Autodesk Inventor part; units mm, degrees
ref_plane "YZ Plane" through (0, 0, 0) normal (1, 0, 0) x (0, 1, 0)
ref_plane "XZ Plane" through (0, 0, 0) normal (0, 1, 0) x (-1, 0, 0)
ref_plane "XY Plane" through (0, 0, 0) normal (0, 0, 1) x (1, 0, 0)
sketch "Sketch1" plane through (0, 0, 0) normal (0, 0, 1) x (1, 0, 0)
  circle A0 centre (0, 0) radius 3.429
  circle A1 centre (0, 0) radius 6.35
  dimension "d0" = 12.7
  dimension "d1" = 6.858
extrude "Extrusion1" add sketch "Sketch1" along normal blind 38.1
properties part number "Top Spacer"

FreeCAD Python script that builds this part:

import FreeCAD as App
import Part
import Sketcher
from FreeCAD import Vector
Q = App.Units.Quantity

doc = App.newDocument("Part")
body = doc.addObject("PartDesign::Body", "Body")

# Sketch on XY plane
sketch1 = doc.addObject("Sketcher::SketchObject", "Sketch")
body.addObject(sketch1)
sketch1.AttachmentSupport = (doc.XY_Plane, [""])
sketch1.MapMode = "FlatFace"
sketch1.addGeometry([
    Part.Circle(Vector(0, 0, 0), Vector(0, 0, 1), 6.35),
    Part.Circle(Vector(0, 0, 0), Vector(0, 0, 1), 3.429),
], False)
sketch1.addConstraint([
    Sketcher.Constraint("Coincident", 0, 3, -1, 1),
    Sketcher.Constraint("Coincident", 1, 3, -1, 1),
    Sketcher.Constraint("Diameter", 0, Q("0.5 in")),
    Sketcher.Constraint("Diameter", 1, Q("0.27 in")),
])
pad1 = doc.addObject("PartDesign::Pad", "Pad")
body.addObject(pad1)
pad1.Profile = sketch1
pad1.Length = Q("1.5 in")

doc.recompute()
